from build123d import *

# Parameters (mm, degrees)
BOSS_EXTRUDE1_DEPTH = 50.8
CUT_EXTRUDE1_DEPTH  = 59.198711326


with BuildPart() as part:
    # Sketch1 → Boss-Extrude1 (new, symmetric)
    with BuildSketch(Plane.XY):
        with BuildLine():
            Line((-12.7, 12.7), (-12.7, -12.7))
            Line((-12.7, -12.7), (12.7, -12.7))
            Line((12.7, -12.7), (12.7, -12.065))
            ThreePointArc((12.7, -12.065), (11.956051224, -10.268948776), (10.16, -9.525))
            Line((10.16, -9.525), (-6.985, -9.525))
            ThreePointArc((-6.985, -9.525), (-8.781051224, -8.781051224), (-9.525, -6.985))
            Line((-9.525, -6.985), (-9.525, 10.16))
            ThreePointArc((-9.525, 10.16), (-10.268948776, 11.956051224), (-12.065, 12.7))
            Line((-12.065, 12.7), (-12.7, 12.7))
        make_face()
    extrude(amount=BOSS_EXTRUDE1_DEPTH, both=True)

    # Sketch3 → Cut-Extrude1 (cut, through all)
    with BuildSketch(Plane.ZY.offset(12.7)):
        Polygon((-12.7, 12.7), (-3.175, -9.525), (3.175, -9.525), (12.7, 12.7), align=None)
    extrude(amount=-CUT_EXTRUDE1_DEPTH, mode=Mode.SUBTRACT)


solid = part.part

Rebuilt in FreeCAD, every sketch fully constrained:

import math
import FreeCAD as App
import Part
import Sketcher
Q = App.Units.Quantity


def add_polygon(sketch, points):
    """Adds a closed chain of lines whose ends are joined by coincident constraints."""
    first, n = sketch.GeometryCount, len(points)
    for a, b in zip(points, points[1:] + points[:1]):
        sketch.addGeometry(Part.LineSegment(App.Vector(*a, 0), App.Vector(*b, 0)), False)
    for i in range(n):
        sketch.addConstraint(Sketcher.Constraint("Coincident", first + i, 2, first + (i + 1) % n, 1))

doc = App.newDocument("Part")
body = doc.addObject("PartDesign::Body", "Body")

# Sketch on XY plane
sketch1 = doc.addObject("Sketcher::SketchObject", "Sketch")
body.addObject(sketch1)
sketch1.AttachmentSupport = (doc.XY_Plane, [""])
sketch1.MapMode = "FlatFace"
sketch1.addGeometry(Part.LineSegment(App.Vector(-12.7, 12.7, 0), App.Vector(-12.7, -12.7, 0)), False)
sketch1.addGeometry(Part.LineSegment(App.Vector(-12.7, -12.7, 0), App.Vector(12.7, -12.7, 0)), False)
sketch1.addGeometry(Part.LineSegment(App.Vector(12.7, -12.7, 0), App.Vector(12.7, -12.065, 0)), False)
sketch1.addGeometry(Part.ArcOfCircle(Part.Circle(App.Vector(10.16, -12.065, 0), App.Vector(0, 0, 1), 2.54), math.radians(0), math.radians(90)), False)
sketch1.addGeometry(Part.LineSegment(App.Vector(10.16, -9.525, 0), App.Vector(-6.985, -9.525, 0)), False)
sketch1.addGeometry(Part.ArcOfCircle(Part.Circle(App.Vector(-6.985, -6.985, 0), App.Vector(0, 0, 1), 2.54), math.radians(-180), math.radians(-90)), False)
sketch1.addGeometry(Part.LineSegment(App.Vector(-9.525, -6.985, 0), App.Vector(-9.525, 10.16, 0)), False)
sketch1.addGeometry(Part.ArcOfCircle(Part.Circle(App.Vector(-12.065, 10.16, 0), App.Vector(0, 0, 1), 2.54), math.radians(0), math.radians(90)), False)
sketch1.addGeometry(Part.LineSegment(App.Vector(-12.065, 12.7, 0), App.Vector(-12.7, 12.7, 0)), False)
sketch1.addConstraint(Sketcher.Constraint("Coincident", 0, 2, 1, 1))
sketch1.addConstraint(Sketcher.Constraint("Coincident", 1, 2, 2, 1))
sketch1.addConstraint(Sketcher.Constraint("Tangent", 2, 2, 3, 1))
sketch1.addConstraint(Sketcher.Constraint("Tangent", 3, 2, 4, 1))
sketch1.addConstraint(Sketcher.Constraint("Tangent", 4, 2, 5, 2))
sketch1.addConstraint(Sketcher.Constraint("Tangent", 5, 1, 6, 1))
sketch1.addConstraint(Sketcher.Constraint("Tangent", 6, 2, 7, 1))
sketch1.addConstraint(Sketcher.Constraint("Tangent", 7, 2, 8, 1))
sketch1.addConstraint(Sketcher.Constraint("Coincident", 8, 2, 0, 1))
sketch1.addConstraint(Sketcher.Constraint("Vertical", 0))
sketch1.addConstraint(Sketcher.Constraint("Horizontal", 1))
sketch1.addConstraint(Sketcher.Constraint("Vertical", 2))
sketch1.addConstraint(Sketcher.Constraint("Horizontal", 4))
sketch1.addConstraint(Sketcher.Constraint("Vertical", 6))
sketch1.addConstraint(Sketcher.Constraint("Horizontal", 8))
sketch1.addConstraint(Sketcher.Constraint("Equal", 3, 5))
sketch1.addConstraint(Sketcher.Constraint("Equal", 5, 7))
sketch1.addConstraint(Sketcher.Constraint("Symmetric", 1, 2, 8, 2, -1, 1))
sketch1.addConstraint(Sketcher.Constraint("Equal", 1, 0))
sketch1.addConstraint(Sketcher.Constraint("Equal", 8, 2))
sketch1.addConstraint(Sketcher.Constraint("Radius", 3, Q("0.1 in")))
sketch1.addConstraint(Sketcher.Constraint("DistanceX", 1, 1, 1, 2, Q("1 in")))
sketch1.addConstraint(Sketcher.Constraint("DistanceX", 4, 2, 4, 1, Q("0.675 in")))
pad1 = doc.addObject("PartDesign::Pad", "Pad")
body.addObject(pad1)
pad1.Profile = sketch1
pad1.Length = Q("4 in")
pad1.Midplane = True

# Sketch on YZ plane
sketch2 = doc.addObject("Sketcher::SketchObject", "Sketch001")
body.addObject(sketch2)
sketch2.AttachmentSupport = (doc.YZ_Plane, [""])
sketch2.MapMode = "FlatFace"
sketch2.AttachmentOffset = App.Placement(App.Vector(0, 0, -0.5 * 25.4), App.Rotation())
add_polygon(sketch2, [(12.7, -12.7), (-9.525, -3.175), (-9.525, 3.175), (12.7, 12.7)])  # lines 0-3
sketch2.addConstraint(Sketcher.Constraint("Vertical", 1))
sketch2.addConstraint(Sketcher.Constraint("Vertical", 3))
sketch2.addConstraint(Sketcher.Constraint("Equal", 0, 2))
sketch2.addConstraint(Sketcher.Constraint("DistanceY", 3, 2, 3, 1, Q("1 in")))
sketch2.addConstraint(Sketcher.Constraint("DistanceY", 1, 1, 1, 2, Q("0.25 in")))
sketch2.addConstraint(Sketcher.Constraint("DistanceX", -1, 1, 2, 2, Q("0.5 in")))
sketch2.addConstraint(Sketcher.Constraint("DistanceY", -1, 1, 2, 2, Q("0.5 in")))
sketch2.addConstraint(Sketcher.Constraint("DistanceX", 0, 2, -1, 1, Q("0.375 in")))
pocket1 = doc.addObject("PartDesign::Pocket", "Pocket")
body.addObject(pocket1)
pocket1.Profile = sketch2
pocket1.Type = "ThroughAll"
pocket1.Reversed = True

doc.recompute()
